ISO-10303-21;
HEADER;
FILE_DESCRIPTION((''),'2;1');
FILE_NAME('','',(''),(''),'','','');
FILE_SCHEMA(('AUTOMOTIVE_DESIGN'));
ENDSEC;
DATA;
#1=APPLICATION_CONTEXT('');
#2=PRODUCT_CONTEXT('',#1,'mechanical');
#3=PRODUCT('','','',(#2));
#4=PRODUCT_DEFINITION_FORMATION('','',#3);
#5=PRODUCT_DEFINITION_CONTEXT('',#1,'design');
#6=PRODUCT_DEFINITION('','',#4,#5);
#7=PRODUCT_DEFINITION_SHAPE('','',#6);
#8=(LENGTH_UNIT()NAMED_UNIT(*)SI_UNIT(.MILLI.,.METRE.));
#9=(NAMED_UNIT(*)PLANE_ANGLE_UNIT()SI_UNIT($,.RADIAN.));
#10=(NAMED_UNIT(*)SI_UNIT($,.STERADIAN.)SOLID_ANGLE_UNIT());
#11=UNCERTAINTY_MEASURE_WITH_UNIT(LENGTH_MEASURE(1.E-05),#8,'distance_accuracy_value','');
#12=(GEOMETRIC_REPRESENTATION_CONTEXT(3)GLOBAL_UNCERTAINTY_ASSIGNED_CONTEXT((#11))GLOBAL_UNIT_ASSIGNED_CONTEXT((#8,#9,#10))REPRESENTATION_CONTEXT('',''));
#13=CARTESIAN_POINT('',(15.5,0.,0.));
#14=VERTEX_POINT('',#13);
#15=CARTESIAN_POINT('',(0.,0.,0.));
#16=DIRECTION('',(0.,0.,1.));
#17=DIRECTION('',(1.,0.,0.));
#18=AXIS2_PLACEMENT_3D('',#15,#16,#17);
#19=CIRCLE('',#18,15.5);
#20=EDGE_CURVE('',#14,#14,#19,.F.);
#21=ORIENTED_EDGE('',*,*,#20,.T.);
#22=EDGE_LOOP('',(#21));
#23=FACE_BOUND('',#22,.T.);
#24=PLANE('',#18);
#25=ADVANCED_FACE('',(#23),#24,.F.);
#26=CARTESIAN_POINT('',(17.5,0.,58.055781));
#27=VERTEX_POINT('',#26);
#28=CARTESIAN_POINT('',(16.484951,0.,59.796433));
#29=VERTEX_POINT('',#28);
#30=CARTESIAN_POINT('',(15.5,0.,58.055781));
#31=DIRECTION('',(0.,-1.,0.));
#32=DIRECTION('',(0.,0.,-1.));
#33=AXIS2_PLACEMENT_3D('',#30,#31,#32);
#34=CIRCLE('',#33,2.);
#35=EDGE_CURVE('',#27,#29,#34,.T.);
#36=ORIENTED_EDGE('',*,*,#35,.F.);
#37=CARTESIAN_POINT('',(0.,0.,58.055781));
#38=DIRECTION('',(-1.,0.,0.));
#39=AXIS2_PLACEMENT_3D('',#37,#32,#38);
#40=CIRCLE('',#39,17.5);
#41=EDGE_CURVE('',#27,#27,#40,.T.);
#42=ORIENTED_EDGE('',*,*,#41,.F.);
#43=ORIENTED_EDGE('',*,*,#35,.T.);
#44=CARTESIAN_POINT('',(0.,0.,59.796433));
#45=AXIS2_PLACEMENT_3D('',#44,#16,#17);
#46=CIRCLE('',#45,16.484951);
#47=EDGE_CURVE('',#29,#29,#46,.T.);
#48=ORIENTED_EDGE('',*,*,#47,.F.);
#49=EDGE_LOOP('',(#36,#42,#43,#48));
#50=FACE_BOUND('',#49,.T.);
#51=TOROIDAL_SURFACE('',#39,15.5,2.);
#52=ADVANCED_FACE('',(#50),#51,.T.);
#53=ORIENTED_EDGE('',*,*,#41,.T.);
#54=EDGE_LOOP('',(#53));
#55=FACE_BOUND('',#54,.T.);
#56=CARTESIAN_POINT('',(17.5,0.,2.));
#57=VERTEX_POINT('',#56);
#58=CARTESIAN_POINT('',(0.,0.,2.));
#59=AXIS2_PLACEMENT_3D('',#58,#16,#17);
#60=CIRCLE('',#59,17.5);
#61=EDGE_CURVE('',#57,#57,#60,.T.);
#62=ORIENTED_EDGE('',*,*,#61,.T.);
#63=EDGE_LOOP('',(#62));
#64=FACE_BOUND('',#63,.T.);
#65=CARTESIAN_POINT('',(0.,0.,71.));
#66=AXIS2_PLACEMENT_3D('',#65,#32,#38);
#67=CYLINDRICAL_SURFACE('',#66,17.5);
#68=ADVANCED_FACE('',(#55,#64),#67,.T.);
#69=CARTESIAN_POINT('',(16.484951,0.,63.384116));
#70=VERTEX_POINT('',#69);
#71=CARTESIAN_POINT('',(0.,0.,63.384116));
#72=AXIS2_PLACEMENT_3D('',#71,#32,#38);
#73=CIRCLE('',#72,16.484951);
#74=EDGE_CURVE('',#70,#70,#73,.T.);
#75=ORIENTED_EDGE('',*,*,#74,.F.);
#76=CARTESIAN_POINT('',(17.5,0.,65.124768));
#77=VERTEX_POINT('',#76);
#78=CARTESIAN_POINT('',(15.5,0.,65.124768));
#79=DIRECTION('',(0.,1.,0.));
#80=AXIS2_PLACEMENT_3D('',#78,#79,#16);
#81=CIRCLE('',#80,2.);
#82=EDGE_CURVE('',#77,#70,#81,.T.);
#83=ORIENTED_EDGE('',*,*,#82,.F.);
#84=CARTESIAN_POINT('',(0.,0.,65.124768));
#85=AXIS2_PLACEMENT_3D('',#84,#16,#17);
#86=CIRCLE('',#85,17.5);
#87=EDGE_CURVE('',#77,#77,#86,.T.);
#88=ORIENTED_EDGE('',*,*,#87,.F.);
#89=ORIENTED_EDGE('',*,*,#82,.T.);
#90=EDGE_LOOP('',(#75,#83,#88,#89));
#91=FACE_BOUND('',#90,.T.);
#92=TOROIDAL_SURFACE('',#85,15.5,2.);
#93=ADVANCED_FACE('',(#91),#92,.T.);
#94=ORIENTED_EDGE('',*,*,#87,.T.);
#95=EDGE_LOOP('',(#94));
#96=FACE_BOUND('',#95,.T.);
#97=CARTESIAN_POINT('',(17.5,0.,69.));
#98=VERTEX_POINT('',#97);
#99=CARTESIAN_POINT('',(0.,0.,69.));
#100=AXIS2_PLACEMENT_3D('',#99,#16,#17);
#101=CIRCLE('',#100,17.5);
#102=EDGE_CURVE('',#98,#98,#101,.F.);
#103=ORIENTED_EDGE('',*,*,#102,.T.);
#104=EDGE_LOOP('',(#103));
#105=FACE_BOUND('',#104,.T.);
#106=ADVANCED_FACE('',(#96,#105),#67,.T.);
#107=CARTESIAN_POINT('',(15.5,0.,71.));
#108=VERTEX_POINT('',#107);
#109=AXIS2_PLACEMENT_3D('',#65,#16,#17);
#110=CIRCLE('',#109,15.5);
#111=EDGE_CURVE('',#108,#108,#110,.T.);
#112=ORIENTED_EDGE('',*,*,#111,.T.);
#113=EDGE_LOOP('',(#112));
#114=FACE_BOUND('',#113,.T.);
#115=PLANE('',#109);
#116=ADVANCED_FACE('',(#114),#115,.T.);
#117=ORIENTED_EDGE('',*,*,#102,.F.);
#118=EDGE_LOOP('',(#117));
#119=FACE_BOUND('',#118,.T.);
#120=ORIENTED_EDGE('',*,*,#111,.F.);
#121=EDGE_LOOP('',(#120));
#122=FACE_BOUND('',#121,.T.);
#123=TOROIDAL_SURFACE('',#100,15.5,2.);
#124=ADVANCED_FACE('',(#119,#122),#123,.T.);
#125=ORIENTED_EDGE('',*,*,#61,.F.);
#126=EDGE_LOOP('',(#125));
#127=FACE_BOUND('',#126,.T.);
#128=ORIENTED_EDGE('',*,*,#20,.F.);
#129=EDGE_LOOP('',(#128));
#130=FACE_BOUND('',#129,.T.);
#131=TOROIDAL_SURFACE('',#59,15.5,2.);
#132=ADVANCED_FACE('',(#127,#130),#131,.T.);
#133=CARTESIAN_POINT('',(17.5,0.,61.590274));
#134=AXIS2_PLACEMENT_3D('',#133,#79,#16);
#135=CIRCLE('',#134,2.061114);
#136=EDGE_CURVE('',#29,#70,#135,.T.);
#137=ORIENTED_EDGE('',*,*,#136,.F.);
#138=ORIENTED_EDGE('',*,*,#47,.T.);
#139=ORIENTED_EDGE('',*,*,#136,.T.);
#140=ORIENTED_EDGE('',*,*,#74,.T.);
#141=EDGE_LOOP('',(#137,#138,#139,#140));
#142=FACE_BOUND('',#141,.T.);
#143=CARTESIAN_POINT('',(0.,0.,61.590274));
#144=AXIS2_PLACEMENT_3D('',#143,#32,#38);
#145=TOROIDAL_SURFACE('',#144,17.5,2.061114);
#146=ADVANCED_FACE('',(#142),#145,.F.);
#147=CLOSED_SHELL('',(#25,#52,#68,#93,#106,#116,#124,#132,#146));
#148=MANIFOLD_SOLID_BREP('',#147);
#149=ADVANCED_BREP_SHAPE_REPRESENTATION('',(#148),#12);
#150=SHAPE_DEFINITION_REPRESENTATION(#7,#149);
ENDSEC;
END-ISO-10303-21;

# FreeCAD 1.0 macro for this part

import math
import FreeCAD as App
import Part
import Sketcher
from FreeCAD import Vector
Q = App.Units.Quantity


def edges_at(feature, points):
    """Names of the edges that pass closest to the given points."""
    edges = feature.Shape.Edges
    near = lambda p: min(range(len(edges)), key=lambda i: edges[i].distToShape(Part.Vertex(*p))[0])
    return sorted({f"Edge{near(p) + 1}" for p in points})

doc = App.newDocument("Part")
params = doc.addObject("Spreadsheet::Sheet", "Params")
for row, (alias, value) in enumerate([
    ("sketch1_diameter", "35 mm"),
    ("pad1_length", "71 mm"),
    ("fillet_radius", "2 mm"),
    ("sketch3_radius", "17.5 mm"),
    ("fillet2_radius", "2 mm"),
], start=1):
    params.set(f"A{row}", alias)
    params.set(f"B{row}", "=" + value)
    params.setAlias(f"B{row}", alias)

body = doc.addObject("PartDesign::Body", "Body")

# Sketch on XY plane
sketch1 = body.newObject("Sketcher::SketchObject", "Sketch")
sketch1.AttachmentSupport = (doc.getObject("XY_Plane"), [""])
sketch1.MapMode = "FlatFace"
sketch1.addGeometry(Part.Circle(Vector(0, 0, 0), Vector(0, 0, 1), 18), False)
sketch1.addConstraint([
    Sketcher.Constraint("Coincident", 0, 3, -1, 1),
    Sketcher.Constraint("Diameter", 0, Q("35 mm")),
])
sketch1.setExpression("Constraints[1]", "Params.sketch1_diameter")
pad1 = body.newObject("PartDesign::Pad", "Pad")
pad1.Profile = sketch1
pad1.setExpression("Length", "Params.pad1_length")
doc.recompute()

fillet = body.newObject("PartDesign::Fillet", "Fillet")
fillet.Base = (pad1, edges_at(pad1, [(-17.5, 0, 0), (-17.5, 0, 71)]))
fillet.setExpression("Radius", "Params.fillet_radius")

# Sketch on XZ plane
sketch2 = body.newObject("Sketcher::SketchObject", "Sketch001")
sketch2.AttachmentSupport = (doc.getObject("XZ_Plane"), [""])
sketch2.MapMode = "FlatFace"
sketch2.addGeometry(Part.Circle(Vector(17.5, 61.6, 0), Vector(0, 0, 1), 2.1), False)
sketch2.addConstraint([
    Sketcher.Constraint("DistanceX", -1, 1, 0, 3, Q("17.5 mm")),
    Sketcher.Constraint("Diameter", 0, Q("4.122228 mm")),
    Sketcher.Constraint("DistanceY", -1, 1, 0, 3, Q("61.590274 mm")),
])

# Sketch on XY plane
sketch3 = body.newObject("Sketcher::SketchObject", "Sketch002")
sketch3.AttachmentSupport = (doc.getObject("XY_Plane"), [""])
sketch3.MapMode = "FlatFace"
sketch3.AttachmentOffset = App.Placement(Vector(0, 0, 69), App.Rotation())
sketch3.addGeometry([
    Part.ArcOfCircle(Part.Circle(Vector(0, 0, 0), Vector(0, 0, 1), 17), math.radians(0), math.radians(90)),
    Part.ArcOfCircle(Part.Circle(Vector(0, 0, 0), Vector(0, 0, 1), 17), math.radians(90), math.radians(180)),
    Part.ArcOfCircle(Part.Circle(Vector(0, 0, 0), Vector(0, 0, 1), 17), math.radians(180), math.radians(270)),
    Part.ArcOfCircle(Part.Circle(Vector(0, 0, 0), Vector(0, 0, 1), 17), math.radians(-90), math.radians(0)),
], False)
sketch3.addConstraint([
    Sketcher.Constraint("Tangent", 0, 2, 1, 1),
    Sketcher.Constraint("Tangent", 1, 2, 2, 1),
    Sketcher.Constraint("Tangent", 2, 2, 3, 1),
    Sketcher.Constraint("Tangent", 3, 2, 0, 1),
    Sketcher.Constraint("Coincident", 0, 3, -1, 1),
    Sketcher.Constraint("Equal", 0, 1),
    Sketcher.Constraint("PointOnObject", 0, 2, -2),
    Sketcher.Constraint("PointOnObject", 1, 2, -1),
    Sketcher.Constraint("PointOnObject", 2, 2, -2),
    Sketcher.Constraint("PointOnObject", 3, 2, -1),
    Sketcher.Constraint("Radius", 0, Q("17.5 mm")),
])
sketch3.setExpression("Constraints[10]", "Params.sketch3_radius")
doc.recompute()

subtractivepipe = body.newObject("PartDesign::SubtractivePipe", "SubtractivePipe")
subtractivepipe.Profile = sketch2
subtractivepipe.Spine = (sketch3, ["Edge1", "Edge2", "Edge3", "Edge4"])
doc.recompute()

fillet2 = body.newObject("PartDesign::Fillet", "Fillet001")
fillet2.Base = (subtractivepipe, edges_at(subtractivepipe, [(-12.374, -12.374, 63.651), (12.374, -12.374, 59.529)]))
fillet2.setExpression("Radius", "Params.fillet2_radius")

doc.recompute()
